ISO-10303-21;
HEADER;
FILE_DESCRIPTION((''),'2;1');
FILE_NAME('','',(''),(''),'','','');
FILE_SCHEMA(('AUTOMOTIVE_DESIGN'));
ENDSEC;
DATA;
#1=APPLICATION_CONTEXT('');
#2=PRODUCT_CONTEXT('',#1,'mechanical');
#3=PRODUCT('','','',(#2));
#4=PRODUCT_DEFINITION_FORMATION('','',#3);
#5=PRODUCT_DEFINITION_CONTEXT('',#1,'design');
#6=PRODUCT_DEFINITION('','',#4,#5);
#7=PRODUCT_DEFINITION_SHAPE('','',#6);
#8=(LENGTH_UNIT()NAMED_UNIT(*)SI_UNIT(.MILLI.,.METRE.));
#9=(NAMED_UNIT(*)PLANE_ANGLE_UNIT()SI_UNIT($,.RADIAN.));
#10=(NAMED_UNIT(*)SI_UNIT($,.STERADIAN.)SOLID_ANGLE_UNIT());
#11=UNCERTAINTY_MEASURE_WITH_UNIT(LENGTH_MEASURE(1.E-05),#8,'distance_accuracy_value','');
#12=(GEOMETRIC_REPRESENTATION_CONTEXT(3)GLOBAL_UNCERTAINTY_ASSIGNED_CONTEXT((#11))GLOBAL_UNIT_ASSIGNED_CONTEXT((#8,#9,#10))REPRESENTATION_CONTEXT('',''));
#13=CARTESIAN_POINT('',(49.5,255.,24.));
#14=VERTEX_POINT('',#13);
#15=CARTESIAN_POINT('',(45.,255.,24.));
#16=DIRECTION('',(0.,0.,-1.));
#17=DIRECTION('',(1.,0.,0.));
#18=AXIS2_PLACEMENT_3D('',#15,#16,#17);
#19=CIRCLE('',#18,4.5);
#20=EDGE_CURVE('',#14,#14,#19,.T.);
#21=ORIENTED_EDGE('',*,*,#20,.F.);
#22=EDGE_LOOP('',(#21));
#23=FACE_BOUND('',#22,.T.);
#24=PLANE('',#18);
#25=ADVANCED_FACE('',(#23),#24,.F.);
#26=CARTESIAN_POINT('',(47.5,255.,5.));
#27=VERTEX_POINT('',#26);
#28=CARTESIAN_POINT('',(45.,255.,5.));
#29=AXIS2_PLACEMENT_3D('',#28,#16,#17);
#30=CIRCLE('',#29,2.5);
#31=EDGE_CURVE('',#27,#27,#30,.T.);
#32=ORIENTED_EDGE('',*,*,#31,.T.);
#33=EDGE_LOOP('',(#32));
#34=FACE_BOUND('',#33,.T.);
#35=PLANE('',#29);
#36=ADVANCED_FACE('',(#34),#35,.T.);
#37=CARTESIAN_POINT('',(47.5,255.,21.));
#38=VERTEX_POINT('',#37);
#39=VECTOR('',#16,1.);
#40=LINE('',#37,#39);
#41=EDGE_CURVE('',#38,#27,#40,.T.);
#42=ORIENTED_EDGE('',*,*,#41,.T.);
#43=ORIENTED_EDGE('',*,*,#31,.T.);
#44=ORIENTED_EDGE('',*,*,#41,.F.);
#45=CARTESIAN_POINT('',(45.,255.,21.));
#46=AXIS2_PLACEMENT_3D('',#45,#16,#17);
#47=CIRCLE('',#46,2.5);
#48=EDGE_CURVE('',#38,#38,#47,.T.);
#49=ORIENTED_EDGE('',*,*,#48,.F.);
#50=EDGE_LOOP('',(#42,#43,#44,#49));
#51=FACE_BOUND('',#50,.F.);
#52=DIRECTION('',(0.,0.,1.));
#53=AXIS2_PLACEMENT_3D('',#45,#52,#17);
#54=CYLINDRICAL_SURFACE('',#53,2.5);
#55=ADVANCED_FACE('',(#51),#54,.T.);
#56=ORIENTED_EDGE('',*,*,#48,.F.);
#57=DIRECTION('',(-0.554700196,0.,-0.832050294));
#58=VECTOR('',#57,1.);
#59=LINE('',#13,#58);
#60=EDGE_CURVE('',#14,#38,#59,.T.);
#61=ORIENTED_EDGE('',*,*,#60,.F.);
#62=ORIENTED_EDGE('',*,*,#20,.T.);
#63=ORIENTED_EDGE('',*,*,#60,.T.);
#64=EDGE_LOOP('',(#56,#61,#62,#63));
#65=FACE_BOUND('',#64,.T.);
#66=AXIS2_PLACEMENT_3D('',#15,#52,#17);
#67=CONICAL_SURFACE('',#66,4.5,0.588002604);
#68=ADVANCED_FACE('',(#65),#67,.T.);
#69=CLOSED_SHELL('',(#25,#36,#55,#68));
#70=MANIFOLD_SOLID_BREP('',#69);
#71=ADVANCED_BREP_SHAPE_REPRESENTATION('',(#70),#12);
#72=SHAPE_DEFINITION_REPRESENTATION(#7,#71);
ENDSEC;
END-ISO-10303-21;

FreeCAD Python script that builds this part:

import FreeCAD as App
import Part
import Sketcher
from FreeCAD import Vector


def add_polygon(sketch, points):
    """Adds a closed chain of lines whose ends are joined by coincident constraints."""
    first, n = sketch.GeometryCount, len(points)
    for a, b in zip(points, points[1:] + points[:1]):
        sketch.addGeometry(Part.LineSegment(App.Vector(*a, 0), App.Vector(*b, 0)), False)
    for i in range(n):
        sketch.addConstraint(Sketcher.Constraint("Coincident", first + i, 2, first + (i + 1) % n, 1))

doc = App.newDocument("Part")
body = doc.addObject("PartDesign::Body", "Body")

# Sketch on XZ plane
sketch1 = body.newObject("Sketcher::SketchObject", "Sketch")
sketch1.AttachmentSupport = (doc.getObject("XZ_Plane"), [""])
sketch1.MapMode = "FlatFace"
add_polygon(sketch1, [(0, -3), (4.5, -3), (2.5, 0), (0, 0)])  # lines 0-3
sketch1.addConstraint([
    Sketcher.Constraint("Horizontal", 0),
    Sketcher.Constraint("Horizontal", 2),
    Sketcher.Constraint("Vertical", 3),
    Sketcher.Constraint("Coincident", 2, 2, -1, 1),
    Sketcher.Constraint("DistanceY", 3, 2, 3, 1, 3.0),
    Sketcher.Constraint("DistanceX", 0, 1, 0, 2, 4.5),
    Sketcher.Constraint("DistanceX", 2, 2, 2, 1, 2.5),
])
revolution = body.newObject("PartDesign::Revolution", "Revolution")
revolution.Profile = sketch1
revolution.ReferenceAxis = (sketch1, ["V_Axis"])
revolution.Angle = 360
body2 = doc.addObject("PartDesign::Body", "Body001")

# Sketch on XY plane
sketch2 = body2.newObject("Sketcher::SketchObject", "Sketch001")
sketch2.AttachmentSupport = (doc.getObject("XY_Plane001"), [""])
sketch2.MapMode = "FlatFace"
sketch2.addGeometry(Part.Circle(Vector(0, 0, 0), Vector(0, 0, 1), 2.5), False)
sketch2.addConstraint([
    Sketcher.Constraint("Coincident", 0, 3, -1, 1),
    Sketcher.Constraint("Diameter", 0, 5.0),
])
pad1 = body2.newObject("PartDesign::Pad", "Pad")
pad1.Profile = sketch2
pad1.Length = 16
doc.recompute()

boolean = body2.newObject("PartDesign::Boolean", "Boolean")
boolean.Type = "Fuse"
boolean.addObjects([body])
body3 = doc.addObject("PartDesign::Body", "Body002")
doc.recompute()

body2.Placement = App.Placement(Vector(45, 15, 21), App.Rotation(Vector(0, 1, 0), 180))
boolean2 = body3.newObject("PartDesign::Boolean", "Boolean001")
boolean2.Type = "Fuse"
boolean2.addObjects([body2])
body4 = doc.addObject("PartDesign::Body", "Body003")
doc.recompute()

body3.Placement = App.Placement(Vector(90, 270, 0), App.Rotation(Vector(0, 0, 1), 180))
boolean3 = body4.newObject("PartDesign::Boolean", "Boolean002")
boolean3.Type = "Fuse"
boolean3.addObjects([body3])

doc.recompute()
